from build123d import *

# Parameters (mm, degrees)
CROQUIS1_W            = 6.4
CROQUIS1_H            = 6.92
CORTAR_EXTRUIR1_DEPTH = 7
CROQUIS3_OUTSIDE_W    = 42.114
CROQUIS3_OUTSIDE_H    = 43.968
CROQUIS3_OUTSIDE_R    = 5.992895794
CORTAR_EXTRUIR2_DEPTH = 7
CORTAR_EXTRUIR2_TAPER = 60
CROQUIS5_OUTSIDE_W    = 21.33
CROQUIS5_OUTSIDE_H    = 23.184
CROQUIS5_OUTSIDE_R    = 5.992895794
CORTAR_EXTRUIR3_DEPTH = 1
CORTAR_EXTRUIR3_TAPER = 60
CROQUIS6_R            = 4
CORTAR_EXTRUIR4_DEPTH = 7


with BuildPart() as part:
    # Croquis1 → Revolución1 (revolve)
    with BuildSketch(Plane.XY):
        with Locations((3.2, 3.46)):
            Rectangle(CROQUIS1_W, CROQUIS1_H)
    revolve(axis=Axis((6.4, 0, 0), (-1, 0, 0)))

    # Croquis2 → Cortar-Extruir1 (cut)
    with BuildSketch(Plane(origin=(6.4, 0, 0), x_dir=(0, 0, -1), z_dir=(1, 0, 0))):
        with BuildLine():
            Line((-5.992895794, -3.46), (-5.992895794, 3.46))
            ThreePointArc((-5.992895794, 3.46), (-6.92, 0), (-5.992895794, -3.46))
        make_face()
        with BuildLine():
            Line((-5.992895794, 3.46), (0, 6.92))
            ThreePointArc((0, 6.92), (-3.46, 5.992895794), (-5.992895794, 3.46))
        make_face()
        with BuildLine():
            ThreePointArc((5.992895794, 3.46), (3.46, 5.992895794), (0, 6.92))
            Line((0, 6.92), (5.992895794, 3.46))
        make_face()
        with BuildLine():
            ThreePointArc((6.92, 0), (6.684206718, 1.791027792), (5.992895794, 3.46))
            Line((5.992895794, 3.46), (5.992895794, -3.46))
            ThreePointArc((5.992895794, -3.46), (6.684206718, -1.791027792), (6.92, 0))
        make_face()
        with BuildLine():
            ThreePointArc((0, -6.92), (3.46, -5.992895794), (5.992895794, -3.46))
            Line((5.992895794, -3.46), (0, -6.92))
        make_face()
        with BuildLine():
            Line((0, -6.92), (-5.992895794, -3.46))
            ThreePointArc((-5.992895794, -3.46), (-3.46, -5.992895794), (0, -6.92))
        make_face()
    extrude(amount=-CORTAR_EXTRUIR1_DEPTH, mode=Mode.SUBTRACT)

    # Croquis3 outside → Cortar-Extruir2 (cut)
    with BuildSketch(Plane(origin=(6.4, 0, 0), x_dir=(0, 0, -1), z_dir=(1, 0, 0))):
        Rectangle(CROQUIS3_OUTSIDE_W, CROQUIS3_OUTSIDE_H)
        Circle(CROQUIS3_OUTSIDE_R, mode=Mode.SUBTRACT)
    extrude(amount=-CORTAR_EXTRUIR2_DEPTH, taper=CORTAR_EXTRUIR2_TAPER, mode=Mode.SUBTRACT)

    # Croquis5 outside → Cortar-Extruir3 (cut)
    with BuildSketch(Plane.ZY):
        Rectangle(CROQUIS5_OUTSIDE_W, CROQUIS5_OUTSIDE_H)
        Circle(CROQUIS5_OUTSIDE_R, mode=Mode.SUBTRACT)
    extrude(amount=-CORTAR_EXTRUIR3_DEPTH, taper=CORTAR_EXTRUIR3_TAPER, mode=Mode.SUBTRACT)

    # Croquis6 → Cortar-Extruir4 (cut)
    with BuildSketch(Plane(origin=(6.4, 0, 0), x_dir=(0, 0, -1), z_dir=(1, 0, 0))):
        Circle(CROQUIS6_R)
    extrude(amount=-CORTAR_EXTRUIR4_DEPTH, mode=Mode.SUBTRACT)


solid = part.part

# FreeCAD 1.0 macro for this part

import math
import FreeCAD as App
import Part
import Sketcher

V = App.Vector
Q = App.Units.Quantity

doc = App.newDocument("Part")
body = doc.addObject("PartDesign::Body", "Body")

# Sketch on XY plane
sketch1 = body.newObject("Sketcher::SketchObject", "Sketch")
sketch1.AttachmentSupport = (doc.getObject("XY_Plane"), [""])
sketch1.MapMode = "FlatFace"
sketch1.addGeometry([
    Part.LineSegment(V(0, 6.92, 0), V(0, 0, 0)),
    Part.LineSegment(V(0, 0, 0), V(6.4, 0, 0)),
    Part.LineSegment(V(6.4, 0, 0), V(6.4, 6.92, 0)),
    Part.LineSegment(V(6.4, 6.92, 0), V(0, 6.92, 0)),
], False)
sketch1.addConstraint([
    Sketcher.Constraint("Coincident", 0, 2, 1, 1),
    Sketcher.Constraint("Coincident", 1, 2, 2, 1),
    Sketcher.Constraint("Coincident", 2, 2, 3, 1),
    Sketcher.Constraint("Coincident", 3, 2, 0, 1),
    Sketcher.Constraint("Vertical", 0),
    Sketcher.Constraint("Horizontal", 1),
    Sketcher.Constraint("Vertical", 2),
    Sketcher.Constraint("Horizontal", 3),
    Sketcher.Constraint("Coincident", 0, 2, -1, 1),
    Sketcher.Constraint("DistanceX", 1, 1, 1, 2, 6.4),
    Sketcher.Constraint("DistanceY", 0, 2, 0, 1, 6.92),
])
revolution = body.newObject("PartDesign::Revolution", "Revolution")
revolution.Profile = sketch1
revolution.ReferenceAxis = (sketch1, ["H_Axis"])
revolution.Angle = 360

# Sketch on YZ plane
sketch2 = body.newObject("Sketcher::SketchObject", "Sketch001")
sketch2.AttachmentSupport = (doc.getObject("YZ_Plane"), [""])
sketch2.MapMode = "FlatFace"
sketch2.AttachmentOffset = App.Placement(V(0, 0, 6.4), App.Rotation())
sketch2.addGeometry([
    Part.LineSegment(V(-3.46, 5.992896, 0), V(3.46, 5.992896, 0)),  # 0
    Part.ArcOfCircle(Part.Circle(V(0, 0, 0), V(0, 0, 1), 6.92), math.radians(60), math.radians(120)),  # 1
    Part.LineSegment(V(3.46, 5.992896, 0), V(6.92, 0, 0)),  # 2
    Part.ArcOfCircle(Part.Circle(V(0, 0, 0), V(0, 0, 1), 6.92), math.radians(0), math.radians(60)),  # 3
    Part.ArcOfCircle(Part.Circle(V(0, 0, 0), V(0, 0, 1), 6.92), math.radians(-60), math.radians(0)),  # 4
    Part.LineSegment(V(6.92, 0, 0), V(3.46, -5.992896, 0)),  # 5
    Part.ArcOfCircle(Part.Circle(V(0, 0, 0), V(0, 0, 1), 6.92), math.radians(-90), math.radians(-60)),  # 6
    Part.LineSegment(V(3.46, -5.992896, 0), V(-3.46, -5.992896, 0)),  # 7
    Part.ArcOfCircle(Part.Circle(V(0, 0, 0), V(0, 0, 1), 6.92), math.radians(-120), math.radians(-90)),  # 8
    Part.ArcOfCircle(Part.Circle(V(0, 0, 0), V(0, 0, 1), 6.92), math.radians(180), math.radians(240)),  # 9
    Part.LineSegment(V(-3.46, -5.992896, 0), V(-6.92, 0, 0)),  # 10
    Part.LineSegment(V(-6.92, 0, 0), V(-3.46, 5.992896, 0)),  # 11
    Part.ArcOfCircle(Part.Circle(V(0, 0, 0), V(0, 0, 1), 6.92), math.radians(120), math.radians(180)),  # 12
], False)
sketch2.addConstraint([
    Sketcher.Constraint("Coincident", 0, 1, 1, 2),
    Sketcher.Constraint("Coincident", 1, 1, 0, 2),
    Sketcher.Constraint("Coincident", 2, 1, 3, 2),
    Sketcher.Constraint("Coincident", 3, 1, 2, 2),
    Sketcher.Constraint("Coincident", 4, 1, 5, 2),
    Sketcher.Constraint("Coincident", 5, 1, 4, 2),
    Sketcher.Constraint("Coincident", 6, 2, 7, 1),
    Sketcher.Constraint("Coincident", 7, 2, 8, 1),
    Sketcher.Constraint("Tangent", 8, 2, 6, 1),
    Sketcher.Constraint("Coincident", 9, 1, 10, 2),
    Sketcher.Constraint("Coincident", 10, 1, 9, 2),
    Sketcher.Constraint("Coincident", 11, 1, 12, 2),
    Sketcher.Constraint("Coincident", 12, 1, 11, 2),
    Sketcher.Constraint("Horizontal", 0),
    Sketcher.Constraint("Horizontal", 7),
    Sketcher.Constraint("Coincident", 1, 3, -1, 1),
    Sketcher.Constraint("Coincident", 3, 3, -1, 1),
    Sketcher.Constraint("Coincident", 4, 3, -1, 1),
    Sketcher.Constraint("Coincident", 6, 3, -1, 1),
    Sketcher.Constraint("Coincident", 9, 3, -1, 1),
    Sketcher.Constraint("Coincident", 12, 3, -1, 1),
    Sketcher.Constraint("Coincident", 2, 1, 1, 1),
    Sketcher.Constraint("Coincident", 5, 1, 3, 1),
    Sketcher.Constraint("Coincident", 6, 2, 4, 1),
    Sketcher.Constraint("Coincident", 10, 1, 7, 2),
    Sketcher.Constraint("Coincident", 11, 1, 9, 1),
    Sketcher.Constraint("Coincident", 12, 1, 0, 1),
    Sketcher.Constraint("PointOnObject", 3, 1, -1),
    Sketcher.Constraint("PointOnObject", 8, 2, -2),
    Sketcher.Constraint("PointOnObject", 9, 1, -1),
    Sketcher.Constraint("Parallel", 2, 10),
    Sketcher.Constraint("Angle", 2, Q("-60 deg")),
    Sketcher.Constraint("Radius", 1, 6.92),
])
pocket1 = body.newObject("PartDesign::Pocket", "Pocket")
pocket1.Profile = sketch2
pocket1.Length = 7

# Sketch on YZ plane
sketch3 = body.newObject("Sketcher::SketchObject", "Sketch002")
sketch3.AttachmentSupport = (doc.getObject("YZ_Plane"), [""])
sketch3.MapMode = "FlatFace"
sketch3.AttachmentOffset = App.Placement(V(0, 0, 6.4), App.Rotation())
sketch3.addGeometry([
    Part.LineSegment(V(21.984, 21.057, 0), V(-21.984, 21.057, 0)),  # 0
    Part.LineSegment(V(-21.984, 21.057, 0), V(-21.984, -21.057, 0)),  # 1
    Part.LineSegment(V(-21.984, -21.057, 0), V(21.984, -21.057, 0)),  # 2
    Part.LineSegment(V(21.984, -21.057, 0), V(21.984, 21.057, 0)),  # 3
    Part.Circle(V(0, 0, 0), V(0, 0, 1), 5.992896),  # 4
], False)
sketch3.addConstraint([
    Sketcher.Constraint("Coincident", 0, 2, 1, 1),
    Sketcher.Constraint("Coincident", 1, 2, 2, 1),
    Sketcher.Constraint("Coincident", 2, 2, 3, 1),
    Sketcher.Constraint("Coincident", 3, 2, 0, 1),
    Sketcher.Constraint("Horizontal", 0),
    Sketcher.Constraint("Vertical", 1),
    Sketcher.Constraint("Horizontal", 2),
    Sketcher.Constraint("Vertical", 3),
    Sketcher.Constraint("Coincident", 4, 3, -1, 1),
    Sketcher.Constraint("Symmetric", 0, 2, 2, 2, -1, 1),
    Sketcher.Constraint("Diameter", 4, 11.985792),
    Sketcher.Constraint("DistanceX", 0, 2, 0, 1, 43.968),
    Sketcher.Constraint("DistanceY", 1, 2, 1, 1, 42.114),
])
pocket2 = body.newObject("PartDesign::Pocket", "Pocket001")
pocket2.Profile = sketch3
pocket2.Length = 7
pocket2.TaperAngle = 60

# Sketch on YZ plane
sketch4 = body.newObject("Sketcher::SketchObject", "Sketch003")
sketch4.AttachmentSupport = (doc.getObject("YZ_Plane"), [""])
sketch4.MapMode = "FlatFace"
sketch4.addGeometry([
    Part.LineSegment(V(11.592, -10.665, 0), V(-11.592, -10.665, 0)),  # 0
    Part.LineSegment(V(-11.592, -10.665, 0), V(-11.592, 10.665, 0)),  # 1
    Part.LineSegment(V(-11.592, 10.665, 0), V(11.592, 10.665, 0)),  # 2
    Part.LineSegment(V(11.592, 10.665, 0), V(11.592, -10.665, 0)),  # 3
    Part.Circle(V(0, 0, 0), V(0, 0, 1), 5.992896),  # 4
], False)
sketch4.addConstraint([
    Sketcher.Constraint("Coincident", 0, 2, 1, 1),
    Sketcher.Constraint("Coincident", 1, 2, 2, 1),
    Sketcher.Constraint("Coincident", 2, 2, 3, 1),
    Sketcher.Constraint("Coincident", 3, 2, 0, 1),
    Sketcher.Constraint("Horizontal", 0),
    Sketcher.Constraint("Vertical", 1),
    Sketcher.Constraint("Horizontal", 2),
    Sketcher.Constraint("Vertical", 3),
    Sketcher.Constraint("Coincident", 4, 3, -1, 1),
    Sketcher.Constraint("Symmetric", 0, 2, 2, 2, -1, 1),
    Sketcher.Constraint("DistanceY", 1, 1, 1, 2, 21.33),
    Sketcher.Constraint("Diameter", 4, 11.985792),
    Sketcher.Constraint("DistanceX", 0, 2, 0, 1, 23.184),
])
pocket3 = body.newObject("PartDesign::Pocket", "Pocket002")
pocket3.Profile = sketch4
pocket3.Length = 1
pocket3.Reversed = True
pocket3.TaperAngle = 60

# Sketch on YZ plane
sketch5 = body.newObject("Sketcher::SketchObject", "Sketch004")
sketch5.AttachmentSupport = (doc.getObject("YZ_Plane"), [""])
sketch5.MapMode = "FlatFace"
sketch5.AttachmentOffset = App.Placement(V(0, 0, 6.4), App.Rotation())
sketch5.addGeometry(Part.Circle(V(0, 0, 0), V(0, 0, 1), 4), False)
sketch5.addConstraint([
    Sketcher.Constraint("Coincident", 0, 3, -1, 1),
    Sketcher.Constraint("Diameter", 0, 8.0),
])
pocket4 = body.newObject("PartDesign::Pocket", "Pocket003")
pocket4.Profile = sketch5
pocket4.Length = 7

doc.recompute()
